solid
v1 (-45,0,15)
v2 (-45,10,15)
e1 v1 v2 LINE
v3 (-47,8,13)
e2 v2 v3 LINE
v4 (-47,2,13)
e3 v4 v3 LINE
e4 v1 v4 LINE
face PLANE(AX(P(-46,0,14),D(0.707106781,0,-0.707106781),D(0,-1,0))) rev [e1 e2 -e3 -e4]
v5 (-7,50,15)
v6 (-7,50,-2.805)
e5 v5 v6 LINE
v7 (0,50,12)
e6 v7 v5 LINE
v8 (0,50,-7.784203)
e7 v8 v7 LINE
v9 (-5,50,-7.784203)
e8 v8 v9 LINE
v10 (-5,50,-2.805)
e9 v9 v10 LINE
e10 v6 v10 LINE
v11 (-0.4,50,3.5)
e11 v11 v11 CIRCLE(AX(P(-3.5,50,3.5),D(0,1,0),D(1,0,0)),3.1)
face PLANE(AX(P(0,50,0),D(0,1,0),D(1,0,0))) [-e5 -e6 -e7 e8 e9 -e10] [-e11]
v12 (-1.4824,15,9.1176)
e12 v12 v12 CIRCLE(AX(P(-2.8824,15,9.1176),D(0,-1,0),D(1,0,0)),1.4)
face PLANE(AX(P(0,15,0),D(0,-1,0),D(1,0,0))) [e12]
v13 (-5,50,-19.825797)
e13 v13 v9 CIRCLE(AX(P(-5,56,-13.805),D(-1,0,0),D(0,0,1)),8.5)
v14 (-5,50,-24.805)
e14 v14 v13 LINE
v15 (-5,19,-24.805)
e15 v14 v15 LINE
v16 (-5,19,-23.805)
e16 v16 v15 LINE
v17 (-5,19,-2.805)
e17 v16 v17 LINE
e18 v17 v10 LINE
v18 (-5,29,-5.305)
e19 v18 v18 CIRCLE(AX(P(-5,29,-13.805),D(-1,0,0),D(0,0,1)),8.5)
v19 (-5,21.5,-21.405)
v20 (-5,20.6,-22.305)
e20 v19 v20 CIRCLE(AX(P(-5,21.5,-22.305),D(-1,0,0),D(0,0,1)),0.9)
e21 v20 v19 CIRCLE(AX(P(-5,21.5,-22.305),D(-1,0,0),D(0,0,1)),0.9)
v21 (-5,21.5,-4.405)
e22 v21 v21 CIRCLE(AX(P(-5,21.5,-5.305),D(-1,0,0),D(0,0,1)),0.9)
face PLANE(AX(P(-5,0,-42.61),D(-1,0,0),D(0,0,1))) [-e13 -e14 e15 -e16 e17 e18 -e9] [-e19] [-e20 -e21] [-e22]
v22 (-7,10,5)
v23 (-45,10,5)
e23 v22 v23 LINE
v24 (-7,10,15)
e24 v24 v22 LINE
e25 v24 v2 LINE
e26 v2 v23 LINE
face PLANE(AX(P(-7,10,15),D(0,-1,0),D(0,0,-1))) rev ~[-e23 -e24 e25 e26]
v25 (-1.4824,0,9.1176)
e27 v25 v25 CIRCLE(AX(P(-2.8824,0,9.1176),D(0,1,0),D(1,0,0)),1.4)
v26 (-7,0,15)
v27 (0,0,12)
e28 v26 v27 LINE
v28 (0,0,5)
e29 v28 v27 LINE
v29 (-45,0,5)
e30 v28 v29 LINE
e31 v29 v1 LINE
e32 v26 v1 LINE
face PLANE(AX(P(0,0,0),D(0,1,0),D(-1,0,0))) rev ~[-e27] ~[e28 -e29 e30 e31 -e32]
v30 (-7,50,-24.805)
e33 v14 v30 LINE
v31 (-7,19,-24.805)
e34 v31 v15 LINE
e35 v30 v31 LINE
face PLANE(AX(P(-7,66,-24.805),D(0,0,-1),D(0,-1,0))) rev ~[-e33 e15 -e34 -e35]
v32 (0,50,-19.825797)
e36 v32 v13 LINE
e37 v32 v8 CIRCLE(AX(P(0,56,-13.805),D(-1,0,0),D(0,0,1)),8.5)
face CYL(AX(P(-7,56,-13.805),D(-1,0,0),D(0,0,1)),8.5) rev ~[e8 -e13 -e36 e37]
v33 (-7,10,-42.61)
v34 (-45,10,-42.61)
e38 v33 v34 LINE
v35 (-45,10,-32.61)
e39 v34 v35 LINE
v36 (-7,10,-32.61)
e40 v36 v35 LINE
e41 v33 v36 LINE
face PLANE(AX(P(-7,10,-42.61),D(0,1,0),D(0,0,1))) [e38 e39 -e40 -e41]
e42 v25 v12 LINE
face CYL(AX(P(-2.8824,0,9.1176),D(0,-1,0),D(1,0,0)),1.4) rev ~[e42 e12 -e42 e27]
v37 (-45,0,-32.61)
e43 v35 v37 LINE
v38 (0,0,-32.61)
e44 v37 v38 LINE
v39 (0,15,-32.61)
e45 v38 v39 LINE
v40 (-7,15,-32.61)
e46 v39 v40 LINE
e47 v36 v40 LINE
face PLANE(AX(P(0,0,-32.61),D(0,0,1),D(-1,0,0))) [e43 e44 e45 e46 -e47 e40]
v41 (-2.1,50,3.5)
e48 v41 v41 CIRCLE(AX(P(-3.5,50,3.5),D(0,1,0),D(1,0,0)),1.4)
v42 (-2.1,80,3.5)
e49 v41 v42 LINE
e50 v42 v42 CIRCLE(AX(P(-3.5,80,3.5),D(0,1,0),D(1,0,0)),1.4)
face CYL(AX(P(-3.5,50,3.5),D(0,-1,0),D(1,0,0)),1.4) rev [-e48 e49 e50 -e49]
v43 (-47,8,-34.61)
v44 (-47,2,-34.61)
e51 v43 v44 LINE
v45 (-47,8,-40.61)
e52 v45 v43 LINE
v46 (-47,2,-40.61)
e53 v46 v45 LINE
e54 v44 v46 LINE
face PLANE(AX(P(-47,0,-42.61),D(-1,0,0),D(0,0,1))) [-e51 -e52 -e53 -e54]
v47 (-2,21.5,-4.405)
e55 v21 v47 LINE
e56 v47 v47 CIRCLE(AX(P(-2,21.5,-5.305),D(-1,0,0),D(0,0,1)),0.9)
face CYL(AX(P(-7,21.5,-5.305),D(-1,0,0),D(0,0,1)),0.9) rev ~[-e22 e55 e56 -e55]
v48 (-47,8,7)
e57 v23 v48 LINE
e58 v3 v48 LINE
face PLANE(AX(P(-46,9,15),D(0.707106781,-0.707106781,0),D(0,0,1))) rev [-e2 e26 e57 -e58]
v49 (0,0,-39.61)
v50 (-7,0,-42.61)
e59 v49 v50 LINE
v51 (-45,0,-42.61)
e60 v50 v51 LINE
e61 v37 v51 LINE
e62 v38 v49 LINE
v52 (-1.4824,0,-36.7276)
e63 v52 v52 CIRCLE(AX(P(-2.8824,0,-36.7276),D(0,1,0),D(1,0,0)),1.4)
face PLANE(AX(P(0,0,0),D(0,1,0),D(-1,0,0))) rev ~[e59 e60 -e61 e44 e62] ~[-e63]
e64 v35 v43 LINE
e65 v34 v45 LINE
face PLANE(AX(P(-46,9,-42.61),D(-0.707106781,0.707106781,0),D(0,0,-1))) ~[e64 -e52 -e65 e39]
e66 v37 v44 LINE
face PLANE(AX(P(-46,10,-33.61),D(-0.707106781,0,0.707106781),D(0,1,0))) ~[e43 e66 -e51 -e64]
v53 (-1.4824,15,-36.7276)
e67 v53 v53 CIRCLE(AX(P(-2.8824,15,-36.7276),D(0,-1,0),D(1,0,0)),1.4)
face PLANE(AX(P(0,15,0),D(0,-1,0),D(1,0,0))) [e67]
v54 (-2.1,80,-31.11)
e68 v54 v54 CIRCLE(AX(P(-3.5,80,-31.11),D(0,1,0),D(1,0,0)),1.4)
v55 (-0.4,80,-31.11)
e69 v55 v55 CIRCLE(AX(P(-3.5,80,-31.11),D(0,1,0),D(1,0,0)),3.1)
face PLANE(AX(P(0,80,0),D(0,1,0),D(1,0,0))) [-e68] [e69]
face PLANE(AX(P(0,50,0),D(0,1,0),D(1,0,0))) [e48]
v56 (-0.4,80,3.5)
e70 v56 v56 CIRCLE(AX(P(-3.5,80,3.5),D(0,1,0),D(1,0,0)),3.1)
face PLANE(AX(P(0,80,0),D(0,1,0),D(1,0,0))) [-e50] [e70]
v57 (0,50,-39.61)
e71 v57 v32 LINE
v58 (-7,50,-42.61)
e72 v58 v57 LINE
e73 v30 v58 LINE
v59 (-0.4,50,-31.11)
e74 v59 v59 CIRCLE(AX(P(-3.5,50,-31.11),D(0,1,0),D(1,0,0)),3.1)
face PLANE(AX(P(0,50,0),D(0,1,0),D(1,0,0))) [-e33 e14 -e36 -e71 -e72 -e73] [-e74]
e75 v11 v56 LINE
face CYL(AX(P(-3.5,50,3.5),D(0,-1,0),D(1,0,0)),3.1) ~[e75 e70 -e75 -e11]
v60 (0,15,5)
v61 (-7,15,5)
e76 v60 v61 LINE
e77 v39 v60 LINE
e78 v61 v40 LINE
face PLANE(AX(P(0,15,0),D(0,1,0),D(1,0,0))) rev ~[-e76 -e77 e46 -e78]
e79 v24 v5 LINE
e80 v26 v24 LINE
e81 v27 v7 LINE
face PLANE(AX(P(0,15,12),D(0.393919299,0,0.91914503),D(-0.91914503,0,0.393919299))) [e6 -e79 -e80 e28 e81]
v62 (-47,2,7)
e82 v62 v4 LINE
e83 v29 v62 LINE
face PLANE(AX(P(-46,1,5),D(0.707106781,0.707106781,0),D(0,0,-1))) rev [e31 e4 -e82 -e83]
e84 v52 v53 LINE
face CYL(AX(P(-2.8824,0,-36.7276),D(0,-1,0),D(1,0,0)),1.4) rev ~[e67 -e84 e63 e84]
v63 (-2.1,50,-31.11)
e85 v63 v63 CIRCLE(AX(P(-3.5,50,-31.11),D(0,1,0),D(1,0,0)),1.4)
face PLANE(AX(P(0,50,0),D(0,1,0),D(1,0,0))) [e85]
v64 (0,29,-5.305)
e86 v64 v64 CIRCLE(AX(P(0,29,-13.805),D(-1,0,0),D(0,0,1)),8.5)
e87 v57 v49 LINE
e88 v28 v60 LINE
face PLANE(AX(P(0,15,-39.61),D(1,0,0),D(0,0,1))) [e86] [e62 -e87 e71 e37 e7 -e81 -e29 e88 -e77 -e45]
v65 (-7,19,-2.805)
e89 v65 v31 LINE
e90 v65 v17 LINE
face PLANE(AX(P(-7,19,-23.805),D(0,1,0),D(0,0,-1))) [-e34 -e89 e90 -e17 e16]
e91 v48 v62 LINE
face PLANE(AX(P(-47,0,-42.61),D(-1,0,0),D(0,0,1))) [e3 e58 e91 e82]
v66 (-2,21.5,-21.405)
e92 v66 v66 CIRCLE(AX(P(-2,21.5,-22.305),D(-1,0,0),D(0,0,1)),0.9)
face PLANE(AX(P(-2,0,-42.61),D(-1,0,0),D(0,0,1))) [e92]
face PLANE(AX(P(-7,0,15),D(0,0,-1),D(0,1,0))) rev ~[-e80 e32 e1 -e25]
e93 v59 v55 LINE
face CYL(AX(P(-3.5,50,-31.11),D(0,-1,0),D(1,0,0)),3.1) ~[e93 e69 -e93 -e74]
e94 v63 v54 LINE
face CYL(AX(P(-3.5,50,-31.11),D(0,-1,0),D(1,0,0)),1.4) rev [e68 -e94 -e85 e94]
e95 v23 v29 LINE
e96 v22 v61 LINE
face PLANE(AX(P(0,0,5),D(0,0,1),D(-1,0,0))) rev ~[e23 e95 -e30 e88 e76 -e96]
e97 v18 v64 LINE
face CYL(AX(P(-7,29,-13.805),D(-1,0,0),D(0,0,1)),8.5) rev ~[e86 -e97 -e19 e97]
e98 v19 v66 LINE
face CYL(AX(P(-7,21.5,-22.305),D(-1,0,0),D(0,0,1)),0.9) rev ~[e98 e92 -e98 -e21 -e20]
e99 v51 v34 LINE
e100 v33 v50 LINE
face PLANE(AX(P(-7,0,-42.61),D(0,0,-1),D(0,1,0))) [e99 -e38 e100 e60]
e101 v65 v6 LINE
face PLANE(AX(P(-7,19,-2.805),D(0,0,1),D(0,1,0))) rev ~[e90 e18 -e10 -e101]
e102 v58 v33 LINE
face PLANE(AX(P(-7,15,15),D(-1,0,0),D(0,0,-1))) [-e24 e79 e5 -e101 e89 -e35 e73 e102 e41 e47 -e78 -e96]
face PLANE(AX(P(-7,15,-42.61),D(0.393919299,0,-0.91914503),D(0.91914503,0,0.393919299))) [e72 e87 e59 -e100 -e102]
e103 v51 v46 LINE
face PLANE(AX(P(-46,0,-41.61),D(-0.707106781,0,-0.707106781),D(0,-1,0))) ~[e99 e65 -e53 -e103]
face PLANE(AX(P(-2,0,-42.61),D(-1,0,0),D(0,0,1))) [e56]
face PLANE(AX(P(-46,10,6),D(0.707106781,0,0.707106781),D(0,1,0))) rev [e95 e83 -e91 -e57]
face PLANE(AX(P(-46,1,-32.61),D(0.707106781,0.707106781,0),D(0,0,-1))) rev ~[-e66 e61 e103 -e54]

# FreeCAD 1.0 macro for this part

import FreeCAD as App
import Part
import Sketcher
from FreeCAD import Vector


def edges_at(feature, points):
    """Names of the edges that pass closest to the given points."""
    edges = feature.Shape.Edges
    near = lambda p: min(range(len(edges)), key=lambda i: edges[i].distToShape(Part.Vertex(*p))[0])
    return sorted({f"Edge{near(p) + 1}" for p in points})

doc = App.newDocument("Part")
body = doc.addObject("PartDesign::Body", "Body")
body.AllowCompound = True

# Sketch on XZ plane
sketch1 = doc.addObject("Sketcher::SketchObject", "Sketch")
body.addObject(sketch1)
sketch1.AttachmentSupport = (doc.XZ_Plane, [""])
sketch1.MapMode = "FlatFace"
sketch1.addGeometry([
    Part.LineSegment(Vector(0, 12, 0), Vector(0, 5, 0)),  # 0
    Part.LineSegment(Vector(0, 5, 0), Vector(-7, 5, 0)),  # 1
    Part.LineSegment(Vector(-7, 5, 0), Vector(-7, 15, 0)),  # 2
    Part.LineSegment(Vector(-7, 15, 0), Vector(0, 12, 0)),  # 3
    Part.LineSegment(Vector(-7, -33, 0), Vector(0, -33, 0)),  # 4
    Part.LineSegment(Vector(0, -33, 0), Vector(0, -40, 0)),  # 5
    Part.LineSegment(Vector(0, -40, 0), Vector(-7, -43, 0)),  # 6
    Part.LineSegment(Vector(-7, -43, 0), Vector(-7, -33, 0)),  # 7
], False)
sketch1.addConstraint([
    Sketcher.Constraint("Coincident", 0, 2, 1, 1),
    Sketcher.Constraint("Coincident", 1, 2, 2, 1),
    Sketcher.Constraint("Coincident", 2, 2, 3, 1),
    Sketcher.Constraint("Coincident", 3, 2, 0, 1),
    Sketcher.Constraint("Coincident", 4, 2, 5, 1),
    Sketcher.Constraint("Coincident", 5, 2, 6, 1),
    Sketcher.Constraint("Coincident", 6, 2, 7, 1),
    Sketcher.Constraint("Coincident", 7, 2, 4, 1),
    Sketcher.Constraint("Vertical", 0),
    Sketcher.Constraint("Horizontal", 1),
    Sketcher.Constraint("Vertical", 2),
    Sketcher.Constraint("Horizontal", 4),
    Sketcher.Constraint("Vertical", 5),
    Sketcher.Constraint("Vertical", 7),
    Sketcher.Constraint("PointOnObject", 0, 2, -2),
    Sketcher.Constraint("PointOnObject", 4, 2, -2),
    Sketcher.Constraint("Vertical", 2, 2, 6, 2),
    Sketcher.Constraint("Equal", 4, 0),
    Sketcher.Constraint("Equal", 0, 5),
    Sketcher.Constraint("Equal", 2, 7),
    Sketcher.Constraint("DistanceX", 1, 2, 1, 1, 7.0),
    Sketcher.Constraint("DistanceY", 2, 1, 2, 2, 10.0),
    Sketcher.Constraint("DistanceY", -1, 1, 0, 2, 5.0),
    Sketcher.Constraint("DistanceY", 4, 2, -1, 1, 32.61),
])
pad1 = doc.addObject("PartDesign::Pad", "Pad")
body.addObject(pad1)
pad1.Profile = sketch1
pad1.Length = 15
pad1.Reversed = True

# Sketch on XZ plane
sketch2 = doc.addObject("Sketcher::SketchObject", "Sketch001")
body.addObject(sketch2)
sketch2.AttachmentSupport = (doc.XZ_Plane, [""])
sketch2.MapMode = "FlatFace"
sketch2.AttachmentOffset = App.Placement(Vector(0, 0, -15), App.Rotation())
sketch2.addGeometry([
    Part.LineSegment(Vector(-7, -43, 0), Vector(-7, 15, 0)),
    Part.LineSegment(Vector(-7, 15, 0), Vector(0, 12, 0)),
    Part.LineSegment(Vector(0, 12, 0), Vector(0, -40, 0)),
    Part.LineSegment(Vector(0, -40, 0), Vector(-7, -43, 0)),
], False)
sketch2.addConstraint([
    Sketcher.Constraint("Coincident", 0, 2, 1, 1),
    Sketcher.Constraint("Coincident", 1, 2, 2, 1),
    Sketcher.Constraint("Coincident", 2, 2, 3, 1),
    Sketcher.Constraint("Coincident", 3, 2, 0, 1),
    Sketcher.Constraint("Vertical", 0),
    Sketcher.Constraint("Vertical", 2),
    Sketcher.Constraint("PointOnObject", 1, 2, -2),
    Sketcher.Constraint("Equal", 1, 3),
    Sketcher.Constraint("DistanceX", 0, 2, -1, 1, 7.0),
    Sketcher.Constraint("DistanceY", -1, 1, 0, 2, 15.0),
    Sketcher.Constraint("DistanceY", -1, 1, 1, 2, 12.0),
    Sketcher.Constraint("DistanceY", 0, 1, 0, 2, 57.61),
])
pad2 = doc.addObject("PartDesign::Pad", "Pad001")
body.addObject(pad2)
pad2.Profile = sketch2
pad2.Length = 35
pad2.Reversed = True

# Sketch on XZ plane
sketch3 = doc.addObject("Sketcher::SketchObject", "Sketch002")
body.addObject(sketch3)
sketch3.AttachmentSupport = (doc.XZ_Plane, [""])
sketch3.MapMode = "FlatFace"
sketch3.addGeometry([
    Part.Circle(Vector(-2.9, 9.1, 0), Vector(0, 0, 1), 1.4),
    Part.Circle(Vector(-2.9, -36.7, 0), Vector(0, 0, 1), 1.4),
], False)
sketch3.addConstraint([
    Sketcher.Constraint("Equal", 0, 1),
    Sketcher.Constraint("Vertical", 0, 3, 1, 3),
    Sketcher.Constraint("Diameter", 0, 2.8),
    Sketcher.Constraint("DistanceX", 0, 3, -1, 1, 2.8824),
    Sketcher.Constraint("DistanceY", -1, 1, 0, 3, 9.1176),
    Sketcher.Constraint("DistanceY", 1, 3, -1, 1, 36.7276),
])
pocket1 = doc.addObject("PartDesign::Pocket", "Pocket")
body.addObject(pocket1)
pocket1.Profile = sketch3
pocket1.Length = 15

# Sketch on XZ plane
sketch4 = doc.addObject("Sketcher::SketchObject", "Sketch003")
body.addObject(sketch4)
sketch4.AttachmentSupport = (doc.XZ_Plane, [""])
sketch4.MapMode = "FlatFace"
sketch4.AttachmentOffset = App.Placement(Vector(0, 0, -50), App.Rotation())
sketch4.addGeometry([
    Part.Circle(Vector(-3.5, 3.5, 0), Vector(0, 0, 1), 3.1),
    Part.Circle(Vector(-3.5, 3.5, 0), Vector(0, 0, 1), 1.4),
    Part.Circle(Vector(-3.5, -31.1, 0), Vector(0, 0, 1), 3.1),
    Part.Circle(Vector(-3.5, -31.1, 0), Vector(0, 0, 1), 1.4),
], False)
sketch4.addConstraint([
    Sketcher.Constraint("Coincident", 1, 3, 0, 3),
    Sketcher.Constraint("Coincident", 3, 3, 2, 3),
    Sketcher.Constraint("Equal", 0, 2),
    Sketcher.Constraint("Equal", 1, 3),
    Sketcher.Constraint("Vertical", 1, 3, 2, 3),
    Sketcher.Constraint("Diameter", 0, 6.2),
    Sketcher.Constraint("Diameter", 1, 2.8),
    Sketcher.Constraint("DistanceX", 0, 3, -1, 1, 3.5),
    Sketcher.Constraint("DistanceY", -1, 1, 0, 3, 3.5),
    Sketcher.Constraint("DistanceY", 2, 3, -1, 1, 31.11),
])
pad3 = doc.addObject("PartDesign::Pad", "Pad002")
body.addObject(pad3)
pad3.Profile = sketch4
pad3.Length = 30
pad3.Reversed = True

# Sketch on YZ plane
sketch5 = doc.addObject("Sketcher::SketchObject", "Sketch004")
body.addObject(sketch5)
sketch5.AttachmentSupport = (doc.YZ_Plane, [""])
sketch5.MapMode = "FlatFace"
sketch5.AttachmentOffset = App.Placement(Vector(0, 0, -7), App.Rotation())
sketch5.addGeometry([
    Part.Circle(Vector(56, -14, 0), Vector(0, 0, 1), 8),
    Part.Circle(Vector(29, -14, 0), Vector(0, 0, 1), 8),
], False)
sketch5.addConstraint([
    Sketcher.Constraint("Equal", 0, 1),
    Sketcher.Constraint("Horizontal", 0, 3, 1, 3),
    Sketcher.Constraint("Diameter", 0, 17.0),
    Sketcher.Constraint("DistanceX", 1, 3, 0, 3, 27.0),
    Sketcher.Constraint("DistanceX", -1, 1, 0, 3, 56.0),
    Sketcher.Constraint("DistanceY", 0, 3, -1, 1, 13.805),
])
pocket2 = doc.addObject("PartDesign::Pocket", "Pocket001")
body.addObject(pocket2)
pocket2.Profile = sketch5
pocket2.Type = "ThroughAll"
pocket2.Reversed = True

# Sketch on YZ plane
sketch6 = doc.addObject("Sketcher::SketchObject", "Sketch005")
body.addObject(sketch6)
sketch6.AttachmentSupport = (doc.YZ_Plane, [""])
sketch6.MapMode = "FlatFace"
sketch6.AttachmentOffset = App.Placement(Vector(0, 0, -7), App.Rotation())
sketch6.addGeometry([
    Part.Circle(Vector(21.5, -5.3, 0), Vector(0, 0, 1), 0.9),
    Part.Circle(Vector(21.5, -22.3, 0), Vector(0, 0, 1), 0.9),
], False)
sketch6.addConstraint([
    Sketcher.Constraint("Equal", 0, 1),
    Sketcher.Constraint("Vertical", 0, 3, 1, 3),
    Sketcher.Constraint("Diameter", 0, 1.8),
    Sketcher.Constraint("DistanceY", 1, 3, 0, 3, 17.0),
    Sketcher.Constraint("DistanceX", -1, 1, 0, 3, 21.5),
    Sketcher.Constraint("DistanceY", 0, 3, -1, 1, 5.305),
])
pocket3 = doc.addObject("PartDesign::Pocket", "Pocket002")
body.addObject(pocket3)
pocket3.Profile = sketch6
pocket3.Length = 5
pocket3.Reversed = True

# Sketch on YZ plane
sketch7 = doc.addObject("Sketcher::SketchObject", "Sketch006")
body.addObject(sketch7)
sketch7.AttachmentSupport = (doc.YZ_Plane, [""])
sketch7.MapMode = "FlatFace"
sketch7.AttachmentOffset = App.Placement(Vector(0, 0, -7), App.Rotation())
sketch7.addGeometry([
    Part.LineSegment(Vector(19, -24.8, 0), Vector(19, -23.8, 0)),  # 0
    Part.LineSegment(Vector(19, -23.8, 0), Vector(19, -2.8, 0)),  # 1
    Part.LineSegment(Vector(19, -2.8, 0), Vector(66, -2.8, 0)),  # 2
    Part.LineSegment(Vector(66, -2.8, 0), Vector(66, -24.8, 0)),  # 3
    Part.LineSegment(Vector(66, -24.8, 0), Vector(19, -24.8, 0)),  # 4
    Part.Circle(Vector(21.5, -22.3, 0), Vector(0, 0, 1), 0.9),  # 5
], False)
sketch7.addConstraint([
    Sketcher.Constraint("Coincident", 0, 2, 1, 1),
    Sketcher.Constraint("Coincident", 1, 2, 2, 1),
    Sketcher.Constraint("Coincident", 2, 2, 3, 1),
    Sketcher.Constraint("Coincident", 3, 2, 4, 1),
    Sketcher.Constraint("Coincident", 4, 2, 0, 1),
    Sketcher.Constraint("Vertical", 0),
    Sketcher.Constraint("Vertical", 1),
    Sketcher.Constraint("Horizontal", 2),
    Sketcher.Constraint("Vertical", 3),
    Sketcher.Constraint("Horizontal", 4),
    Sketcher.Constraint("DistanceX", 2, 1, 2, 2, 47.0),
    Sketcher.Constraint("DistanceY", 0, 1, 0, 2, 1.0),
    Sketcher.Constraint("DistanceY", 3, 2, 3, 1, 22.0),
    Sketcher.Constraint("Diameter", 5, 1.8),
    Sketcher.Constraint("DistanceY", 0, 2, 5, 3, 1.5),
    Sketcher.Constraint("DistanceX", -1, 1, 0, 2, 19.0),
    Sketcher.Constraint("DistanceX", -1, 1, 5, 3, 21.5),
    Sketcher.Constraint("DistanceY", 5, 3, -1, 1, 22.305),
])
pocket4 = doc.addObject("PartDesign::Pocket", "Pocket003")
body.addObject(pocket4)
pocket4.Profile = sketch7
pocket4.Length = 2
pocket4.Reversed = True

# Sketch on YZ plane
sketch8 = doc.addObject("Sketcher::SketchObject", "Sketch007")
body.addObject(sketch8)
sketch8.AttachmentSupport = (doc.YZ_Plane, [""])
sketch8.MapMode = "FlatFace"
sketch8.AttachmentOffset = App.Placement(Vector(0, 0, -7), App.Rotation())
sketch8.addGeometry([
    Part.LineSegment(Vector(0, -43, 0), Vector(0, -33, 0)),  # 0
    Part.LineSegment(Vector(0, -33, 0), Vector(10, -33, 0)),  # 1
    Part.LineSegment(Vector(10, -33, 0), Vector(10, -43, 0)),  # 2
    Part.LineSegment(Vector(10, -43, 0), Vector(0, -43, 0)),  # 3
    Part.LineSegment(Vector(10, 5, 0), Vector(0, 5, 0)),  # 4
    Part.LineSegment(Vector(0, 5, 0), Vector(0, 15, 0)),  # 5
    Part.LineSegment(Vector(0, 15, 0), Vector(10, 15, 0)),  # 6
    Part.LineSegment(Vector(10, 15, 0), Vector(10, 5, 0)),  # 7
], False)
sketch8.addConstraint([
    Sketcher.Constraint("Coincident", 0, 2, 1, 1),
    Sketcher.Constraint("Coincident", 1, 2, 2, 1),
    Sketcher.Constraint("Coincident", 2, 2, 3, 1),
    Sketcher.Constraint("Coincident", 3, 2, 0, 1),
    Sketcher.Constraint("Coincident", 4, 2, 5, 1),
    Sketcher.Constraint("Coincident", 5, 2, 6, 1),
    Sketcher.Constraint("Coincident", 6, 2, 7, 1),
    Sketcher.Constraint("Coincident", 7, 2, 4, 1),
    Sketcher.Constraint("Vertical", 0),
    Sketcher.Constraint("Horizontal", 1),
    Sketcher.Constraint("Vertical", 2),
    Sketcher.Constraint("Horizontal", 3),
    Sketcher.Constraint("Horizontal", 4),
    Sketcher.Constraint("Vertical", 5),
    Sketcher.Constraint("Horizontal", 6),
    Sketcher.Constraint("Vertical", 7),
    Sketcher.Constraint("PointOnObject", 0, 2, -2),
    Sketcher.Constraint("PointOnObject", 4, 2, -2),
    Sketcher.Constraint("Vertical", 2, 2, 6, 2),
    Sketcher.Constraint("Equal", 6, 0),
    Sketcher.Constraint("Equal", 2, 5),
    Sketcher.Constraint("DistanceX", 1, 1, 1, 2, 10.0),
    Sketcher.Constraint("DistanceY", -1, 1, 4, 2, 5.0),
    Sketcher.Constraint("DistanceY", 0, 2, -1, 1, 32.61),
])
pad4 = doc.addObject("PartDesign::Pad", "Pad003")
body.addObject(pad4)
pad4.Profile = sketch8
pad4.Length = 40
pad4.Reversed = True
doc.recompute()

chamfer = doc.addObject("PartDesign::Chamfer", "Chamfer")
body.addObject(chamfer)
chamfer.Base = (pad4, edges_at(pad4, [
    (-47, 5, -42.61),
    (-47, 0, -37.61),
    (-47, 5, -32.61),
    (-47, 10, -37.61),
    (-47, 0, 10),
    (-47, 5, 15),
    (-47, 5, 5),
    (-47, 10, 10),
]))
chamfer.Size = 2

doc.recompute()
